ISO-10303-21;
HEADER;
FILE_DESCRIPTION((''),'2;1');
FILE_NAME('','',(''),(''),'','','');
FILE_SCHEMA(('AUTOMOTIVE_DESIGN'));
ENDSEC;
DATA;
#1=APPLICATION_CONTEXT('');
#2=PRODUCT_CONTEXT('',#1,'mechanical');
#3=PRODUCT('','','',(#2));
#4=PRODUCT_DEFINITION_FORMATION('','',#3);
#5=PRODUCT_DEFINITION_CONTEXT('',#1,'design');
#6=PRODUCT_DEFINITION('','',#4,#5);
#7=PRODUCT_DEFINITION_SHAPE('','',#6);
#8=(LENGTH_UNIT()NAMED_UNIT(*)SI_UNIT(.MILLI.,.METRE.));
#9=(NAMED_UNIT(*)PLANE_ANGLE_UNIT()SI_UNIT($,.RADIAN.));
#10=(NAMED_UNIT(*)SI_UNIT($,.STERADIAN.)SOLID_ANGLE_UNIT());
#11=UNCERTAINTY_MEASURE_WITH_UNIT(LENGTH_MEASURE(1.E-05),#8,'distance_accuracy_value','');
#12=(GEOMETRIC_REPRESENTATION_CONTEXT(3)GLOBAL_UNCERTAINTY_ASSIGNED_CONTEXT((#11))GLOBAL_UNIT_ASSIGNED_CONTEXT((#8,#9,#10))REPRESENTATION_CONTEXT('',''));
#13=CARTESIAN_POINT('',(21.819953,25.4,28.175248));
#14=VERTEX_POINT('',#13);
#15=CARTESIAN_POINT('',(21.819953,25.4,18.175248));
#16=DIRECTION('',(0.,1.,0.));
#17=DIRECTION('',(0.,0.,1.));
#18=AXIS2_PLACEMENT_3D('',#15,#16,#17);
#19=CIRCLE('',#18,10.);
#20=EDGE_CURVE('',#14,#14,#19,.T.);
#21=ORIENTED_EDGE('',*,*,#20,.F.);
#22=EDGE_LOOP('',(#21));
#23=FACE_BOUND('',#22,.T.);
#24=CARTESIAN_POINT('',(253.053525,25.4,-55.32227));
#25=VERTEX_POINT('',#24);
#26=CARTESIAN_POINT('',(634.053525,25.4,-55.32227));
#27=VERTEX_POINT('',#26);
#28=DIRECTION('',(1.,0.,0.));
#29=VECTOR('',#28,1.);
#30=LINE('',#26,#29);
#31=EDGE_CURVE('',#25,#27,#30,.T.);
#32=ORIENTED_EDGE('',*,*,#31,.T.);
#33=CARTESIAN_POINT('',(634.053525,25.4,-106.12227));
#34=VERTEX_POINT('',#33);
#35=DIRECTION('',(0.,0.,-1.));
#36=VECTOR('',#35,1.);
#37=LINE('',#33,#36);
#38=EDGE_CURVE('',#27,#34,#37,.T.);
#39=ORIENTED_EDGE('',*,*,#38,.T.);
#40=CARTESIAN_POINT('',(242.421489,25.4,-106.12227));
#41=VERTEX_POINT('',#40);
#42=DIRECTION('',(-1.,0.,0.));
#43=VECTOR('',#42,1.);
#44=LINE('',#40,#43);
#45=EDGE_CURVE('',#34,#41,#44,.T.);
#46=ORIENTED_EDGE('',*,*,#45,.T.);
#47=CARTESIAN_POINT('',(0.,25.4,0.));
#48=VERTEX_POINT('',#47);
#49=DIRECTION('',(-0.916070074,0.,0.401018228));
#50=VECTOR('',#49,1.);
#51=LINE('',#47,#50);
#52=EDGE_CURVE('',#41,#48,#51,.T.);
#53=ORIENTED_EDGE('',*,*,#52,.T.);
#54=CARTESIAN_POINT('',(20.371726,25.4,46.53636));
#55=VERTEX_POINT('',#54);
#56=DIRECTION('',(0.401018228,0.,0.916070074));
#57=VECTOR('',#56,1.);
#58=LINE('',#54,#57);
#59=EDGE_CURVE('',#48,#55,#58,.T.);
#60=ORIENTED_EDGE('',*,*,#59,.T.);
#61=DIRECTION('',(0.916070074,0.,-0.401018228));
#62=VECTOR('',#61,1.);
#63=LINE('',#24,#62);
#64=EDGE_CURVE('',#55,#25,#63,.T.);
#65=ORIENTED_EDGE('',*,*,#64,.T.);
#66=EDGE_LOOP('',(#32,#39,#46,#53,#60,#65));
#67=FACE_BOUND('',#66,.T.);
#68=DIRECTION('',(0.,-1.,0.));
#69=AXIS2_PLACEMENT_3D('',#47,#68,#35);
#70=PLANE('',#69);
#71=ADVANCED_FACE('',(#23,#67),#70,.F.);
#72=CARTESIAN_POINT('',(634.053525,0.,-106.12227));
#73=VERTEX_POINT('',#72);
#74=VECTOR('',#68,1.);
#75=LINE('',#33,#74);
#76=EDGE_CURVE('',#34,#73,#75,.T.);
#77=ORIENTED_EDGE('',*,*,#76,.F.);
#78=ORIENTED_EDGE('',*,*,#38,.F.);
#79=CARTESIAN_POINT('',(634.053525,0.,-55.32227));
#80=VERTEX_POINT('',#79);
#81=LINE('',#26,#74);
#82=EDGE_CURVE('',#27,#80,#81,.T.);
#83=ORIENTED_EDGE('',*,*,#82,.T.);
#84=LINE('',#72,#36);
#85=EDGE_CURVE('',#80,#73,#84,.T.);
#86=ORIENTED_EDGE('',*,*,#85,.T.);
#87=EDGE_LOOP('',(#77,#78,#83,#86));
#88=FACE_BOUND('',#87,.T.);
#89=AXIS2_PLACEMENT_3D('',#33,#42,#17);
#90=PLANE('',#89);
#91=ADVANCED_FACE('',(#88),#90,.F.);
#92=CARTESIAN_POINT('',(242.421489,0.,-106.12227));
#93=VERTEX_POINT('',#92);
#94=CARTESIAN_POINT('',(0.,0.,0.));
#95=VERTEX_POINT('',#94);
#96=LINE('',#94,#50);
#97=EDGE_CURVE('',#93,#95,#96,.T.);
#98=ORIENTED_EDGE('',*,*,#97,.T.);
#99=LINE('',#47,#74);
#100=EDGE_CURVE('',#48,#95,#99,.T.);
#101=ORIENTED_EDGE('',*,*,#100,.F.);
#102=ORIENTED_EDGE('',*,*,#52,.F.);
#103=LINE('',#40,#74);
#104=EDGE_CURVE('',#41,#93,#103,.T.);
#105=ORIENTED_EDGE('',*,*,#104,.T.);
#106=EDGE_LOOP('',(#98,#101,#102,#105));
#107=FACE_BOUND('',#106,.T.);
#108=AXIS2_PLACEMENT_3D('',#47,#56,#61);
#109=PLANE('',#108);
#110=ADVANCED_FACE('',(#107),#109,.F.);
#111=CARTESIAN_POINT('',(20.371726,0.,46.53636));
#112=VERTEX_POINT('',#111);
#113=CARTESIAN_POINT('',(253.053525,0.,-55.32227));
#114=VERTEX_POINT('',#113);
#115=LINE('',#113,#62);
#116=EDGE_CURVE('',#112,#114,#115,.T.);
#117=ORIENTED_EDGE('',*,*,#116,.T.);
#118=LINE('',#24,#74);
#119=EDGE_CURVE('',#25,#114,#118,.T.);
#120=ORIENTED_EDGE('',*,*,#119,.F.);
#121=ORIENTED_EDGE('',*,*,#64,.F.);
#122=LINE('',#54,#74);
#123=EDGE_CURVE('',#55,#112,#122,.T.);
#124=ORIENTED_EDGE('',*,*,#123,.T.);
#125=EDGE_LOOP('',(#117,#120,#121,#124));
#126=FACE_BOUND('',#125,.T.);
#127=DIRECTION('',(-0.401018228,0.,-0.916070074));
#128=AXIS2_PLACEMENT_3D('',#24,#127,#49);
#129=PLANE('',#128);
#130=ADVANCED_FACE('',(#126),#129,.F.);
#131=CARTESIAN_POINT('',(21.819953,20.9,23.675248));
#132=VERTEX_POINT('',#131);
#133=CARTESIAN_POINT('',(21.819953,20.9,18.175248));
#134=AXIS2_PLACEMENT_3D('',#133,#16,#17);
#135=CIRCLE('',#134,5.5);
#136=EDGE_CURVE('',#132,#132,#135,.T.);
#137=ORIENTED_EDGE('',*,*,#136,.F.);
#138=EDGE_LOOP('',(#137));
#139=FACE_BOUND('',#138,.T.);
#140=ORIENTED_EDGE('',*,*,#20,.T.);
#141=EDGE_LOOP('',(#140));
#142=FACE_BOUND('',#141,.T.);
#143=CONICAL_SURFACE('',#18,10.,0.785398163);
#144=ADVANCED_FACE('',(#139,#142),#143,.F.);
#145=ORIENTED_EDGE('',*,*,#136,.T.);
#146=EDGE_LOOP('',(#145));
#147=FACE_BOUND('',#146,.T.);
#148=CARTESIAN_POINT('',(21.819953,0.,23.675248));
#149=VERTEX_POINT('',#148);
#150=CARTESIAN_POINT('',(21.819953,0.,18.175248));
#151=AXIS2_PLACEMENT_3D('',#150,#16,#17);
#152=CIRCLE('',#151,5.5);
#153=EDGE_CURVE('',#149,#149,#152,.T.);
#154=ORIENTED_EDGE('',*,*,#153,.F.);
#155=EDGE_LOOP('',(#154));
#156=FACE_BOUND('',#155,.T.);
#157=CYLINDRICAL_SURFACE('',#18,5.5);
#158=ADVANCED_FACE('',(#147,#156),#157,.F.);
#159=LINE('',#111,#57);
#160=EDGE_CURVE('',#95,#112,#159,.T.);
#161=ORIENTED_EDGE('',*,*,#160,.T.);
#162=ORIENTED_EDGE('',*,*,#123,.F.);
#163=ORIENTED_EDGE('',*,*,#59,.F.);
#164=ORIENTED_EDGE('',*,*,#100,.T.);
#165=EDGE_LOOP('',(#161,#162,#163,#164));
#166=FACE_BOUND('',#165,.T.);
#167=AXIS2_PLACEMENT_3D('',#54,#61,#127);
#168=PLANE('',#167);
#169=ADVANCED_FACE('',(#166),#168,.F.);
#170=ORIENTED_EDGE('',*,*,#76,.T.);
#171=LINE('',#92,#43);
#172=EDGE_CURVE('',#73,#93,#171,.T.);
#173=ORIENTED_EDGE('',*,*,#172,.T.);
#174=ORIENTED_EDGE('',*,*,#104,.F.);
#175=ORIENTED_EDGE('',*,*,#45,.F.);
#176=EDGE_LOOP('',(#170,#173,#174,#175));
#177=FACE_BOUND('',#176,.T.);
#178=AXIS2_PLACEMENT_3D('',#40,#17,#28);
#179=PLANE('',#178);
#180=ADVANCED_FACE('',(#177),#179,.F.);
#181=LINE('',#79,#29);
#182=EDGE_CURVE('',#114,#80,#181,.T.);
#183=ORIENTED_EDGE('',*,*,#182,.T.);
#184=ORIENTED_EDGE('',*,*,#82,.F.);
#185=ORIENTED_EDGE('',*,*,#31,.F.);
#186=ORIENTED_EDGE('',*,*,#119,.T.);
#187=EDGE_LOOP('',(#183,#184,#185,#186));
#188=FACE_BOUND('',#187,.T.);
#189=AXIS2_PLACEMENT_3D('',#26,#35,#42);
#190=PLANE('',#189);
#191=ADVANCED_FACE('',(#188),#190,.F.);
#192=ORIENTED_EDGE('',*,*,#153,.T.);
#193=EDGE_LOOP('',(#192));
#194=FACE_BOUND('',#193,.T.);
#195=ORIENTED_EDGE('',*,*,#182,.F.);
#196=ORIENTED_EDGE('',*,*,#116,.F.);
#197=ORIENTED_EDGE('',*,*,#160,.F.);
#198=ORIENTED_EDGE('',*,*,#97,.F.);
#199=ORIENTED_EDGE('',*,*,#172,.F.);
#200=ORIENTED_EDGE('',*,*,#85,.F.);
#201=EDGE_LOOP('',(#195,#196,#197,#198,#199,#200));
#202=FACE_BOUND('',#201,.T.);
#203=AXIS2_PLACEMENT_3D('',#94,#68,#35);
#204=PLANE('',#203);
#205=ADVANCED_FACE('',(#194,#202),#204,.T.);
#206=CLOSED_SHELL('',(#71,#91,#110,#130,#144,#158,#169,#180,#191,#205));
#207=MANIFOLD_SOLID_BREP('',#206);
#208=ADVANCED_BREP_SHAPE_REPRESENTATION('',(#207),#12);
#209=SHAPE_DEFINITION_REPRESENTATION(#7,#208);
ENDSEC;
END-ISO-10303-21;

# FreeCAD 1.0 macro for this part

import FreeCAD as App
import Part
import Sketcher
Q = App.Units.Quantity

doc = App.newDocument("Part")
body = doc.addObject("PartDesign::Body", "Body")

# Sketch on XZ plane
sketch1 = body.newObject("Sketcher::SketchObject", "Sketch")
sketch1.AttachmentSupport = (doc.getObject("XZ_Plane"), [""])
sketch1.MapMode = "FlatFace"
sketch1.addGeometry([
    Part.LineSegment(App.Vector(242, -106, 0), App.Vector(0, 0, 0)),  # 0
    Part.LineSegment(App.Vector(0, 0, 0), App.Vector(20, 47, 0)),  # 1
    Part.LineSegment(App.Vector(20, 47, 0), App.Vector(253, -55, 0)),  # 2
    Part.LineSegment(App.Vector(253, -55, 0), App.Vector(634, -55, 0)),  # 3
    Part.LineSegment(App.Vector(634, -55, 0), App.Vector(634, -106, 0)),  # 4
    Part.LineSegment(App.Vector(634, -106, 0), App.Vector(242, -106, 0)),  # 5
], False)
sketch1.addConstraint([
    Sketcher.Constraint("Coincident", 0, 2, 1, 1),
    Sketcher.Constraint("Coincident", 1, 2, 2, 1),
    Sketcher.Constraint("Coincident", 2, 2, 3, 1),
    Sketcher.Constraint("Coincident", 3, 2, 4, 1),
    Sketcher.Constraint("Coincident", 4, 2, 5, 1),
    Sketcher.Constraint("Coincident", 5, 2, 0, 1),
    Sketcher.Constraint("Horizontal", 3),
    Sketcher.Constraint("Vertical", 4),
    Sketcher.Constraint("Horizontal", 5),
    Sketcher.Constraint("Coincident", 0, 2, -1, 1),
    Sketcher.Constraint("Perpendicular", 0, 1),
    Sketcher.Constraint("Perpendicular", 1, 2),
    Sketcher.Constraint("DistanceX", 3, 1, 3, 2, Q("15 in")),
    Sketcher.Constraint("DistanceY", 4, 2, 4, 1, Q("2 in")),
    Sketcher.Constraint("Distance", 1, Q("2 in")),
    Sketcher.Constraint("Distance", 2, Q("10 in")),
    Sketcher.Constraint("DistanceX", 1, 2, 2, 2, 232.681799),
])
pad1 = body.newObject("PartDesign::Pad", "Pad")
pad1.Profile = sketch1
pad1.Length = Q("1 in")
pad1.Reversed = True

# Sketch on XZ plane
sketch2 = body.newObject("Sketcher::SketchObject", "Sketch001")
sketch2.AttachmentSupport = (doc.getObject("XZ_Plane"), [""])
sketch2.MapMode = "FlatFace"
sketch2.AttachmentOffset = App.Placement(App.Vector(0, 0, -1 * 25.4), App.Rotation())
sketch2.addGeometry(Part.Circle(App.Vector(22, 18, 0), App.Vector(0, 0, 1), 6), False)
sketch2.addConstraint([
    Sketcher.Constraint("Diameter", 0, 11.0),
    Sketcher.Constraint("DistanceY", -1, 1, 0, 3, 18.175248),
    Sketcher.Constraint("DistanceX", -1, 1, 0, 3, 21.819953),
])
doc.recompute()
hole = body.newObject("PartDesign::Hole", "Hole")
hole.Profile = sketch2
hole.ThreadType = "None"
hole.Diameter = 11
hole.DepthType = "ThroughAll"
hole.HoleCutType = "Countersink"
hole.HoleCutDiameter = 20
hole.HoleCutCountersinkAngle = 90
hole.Reversed = True

doc.recompute()
